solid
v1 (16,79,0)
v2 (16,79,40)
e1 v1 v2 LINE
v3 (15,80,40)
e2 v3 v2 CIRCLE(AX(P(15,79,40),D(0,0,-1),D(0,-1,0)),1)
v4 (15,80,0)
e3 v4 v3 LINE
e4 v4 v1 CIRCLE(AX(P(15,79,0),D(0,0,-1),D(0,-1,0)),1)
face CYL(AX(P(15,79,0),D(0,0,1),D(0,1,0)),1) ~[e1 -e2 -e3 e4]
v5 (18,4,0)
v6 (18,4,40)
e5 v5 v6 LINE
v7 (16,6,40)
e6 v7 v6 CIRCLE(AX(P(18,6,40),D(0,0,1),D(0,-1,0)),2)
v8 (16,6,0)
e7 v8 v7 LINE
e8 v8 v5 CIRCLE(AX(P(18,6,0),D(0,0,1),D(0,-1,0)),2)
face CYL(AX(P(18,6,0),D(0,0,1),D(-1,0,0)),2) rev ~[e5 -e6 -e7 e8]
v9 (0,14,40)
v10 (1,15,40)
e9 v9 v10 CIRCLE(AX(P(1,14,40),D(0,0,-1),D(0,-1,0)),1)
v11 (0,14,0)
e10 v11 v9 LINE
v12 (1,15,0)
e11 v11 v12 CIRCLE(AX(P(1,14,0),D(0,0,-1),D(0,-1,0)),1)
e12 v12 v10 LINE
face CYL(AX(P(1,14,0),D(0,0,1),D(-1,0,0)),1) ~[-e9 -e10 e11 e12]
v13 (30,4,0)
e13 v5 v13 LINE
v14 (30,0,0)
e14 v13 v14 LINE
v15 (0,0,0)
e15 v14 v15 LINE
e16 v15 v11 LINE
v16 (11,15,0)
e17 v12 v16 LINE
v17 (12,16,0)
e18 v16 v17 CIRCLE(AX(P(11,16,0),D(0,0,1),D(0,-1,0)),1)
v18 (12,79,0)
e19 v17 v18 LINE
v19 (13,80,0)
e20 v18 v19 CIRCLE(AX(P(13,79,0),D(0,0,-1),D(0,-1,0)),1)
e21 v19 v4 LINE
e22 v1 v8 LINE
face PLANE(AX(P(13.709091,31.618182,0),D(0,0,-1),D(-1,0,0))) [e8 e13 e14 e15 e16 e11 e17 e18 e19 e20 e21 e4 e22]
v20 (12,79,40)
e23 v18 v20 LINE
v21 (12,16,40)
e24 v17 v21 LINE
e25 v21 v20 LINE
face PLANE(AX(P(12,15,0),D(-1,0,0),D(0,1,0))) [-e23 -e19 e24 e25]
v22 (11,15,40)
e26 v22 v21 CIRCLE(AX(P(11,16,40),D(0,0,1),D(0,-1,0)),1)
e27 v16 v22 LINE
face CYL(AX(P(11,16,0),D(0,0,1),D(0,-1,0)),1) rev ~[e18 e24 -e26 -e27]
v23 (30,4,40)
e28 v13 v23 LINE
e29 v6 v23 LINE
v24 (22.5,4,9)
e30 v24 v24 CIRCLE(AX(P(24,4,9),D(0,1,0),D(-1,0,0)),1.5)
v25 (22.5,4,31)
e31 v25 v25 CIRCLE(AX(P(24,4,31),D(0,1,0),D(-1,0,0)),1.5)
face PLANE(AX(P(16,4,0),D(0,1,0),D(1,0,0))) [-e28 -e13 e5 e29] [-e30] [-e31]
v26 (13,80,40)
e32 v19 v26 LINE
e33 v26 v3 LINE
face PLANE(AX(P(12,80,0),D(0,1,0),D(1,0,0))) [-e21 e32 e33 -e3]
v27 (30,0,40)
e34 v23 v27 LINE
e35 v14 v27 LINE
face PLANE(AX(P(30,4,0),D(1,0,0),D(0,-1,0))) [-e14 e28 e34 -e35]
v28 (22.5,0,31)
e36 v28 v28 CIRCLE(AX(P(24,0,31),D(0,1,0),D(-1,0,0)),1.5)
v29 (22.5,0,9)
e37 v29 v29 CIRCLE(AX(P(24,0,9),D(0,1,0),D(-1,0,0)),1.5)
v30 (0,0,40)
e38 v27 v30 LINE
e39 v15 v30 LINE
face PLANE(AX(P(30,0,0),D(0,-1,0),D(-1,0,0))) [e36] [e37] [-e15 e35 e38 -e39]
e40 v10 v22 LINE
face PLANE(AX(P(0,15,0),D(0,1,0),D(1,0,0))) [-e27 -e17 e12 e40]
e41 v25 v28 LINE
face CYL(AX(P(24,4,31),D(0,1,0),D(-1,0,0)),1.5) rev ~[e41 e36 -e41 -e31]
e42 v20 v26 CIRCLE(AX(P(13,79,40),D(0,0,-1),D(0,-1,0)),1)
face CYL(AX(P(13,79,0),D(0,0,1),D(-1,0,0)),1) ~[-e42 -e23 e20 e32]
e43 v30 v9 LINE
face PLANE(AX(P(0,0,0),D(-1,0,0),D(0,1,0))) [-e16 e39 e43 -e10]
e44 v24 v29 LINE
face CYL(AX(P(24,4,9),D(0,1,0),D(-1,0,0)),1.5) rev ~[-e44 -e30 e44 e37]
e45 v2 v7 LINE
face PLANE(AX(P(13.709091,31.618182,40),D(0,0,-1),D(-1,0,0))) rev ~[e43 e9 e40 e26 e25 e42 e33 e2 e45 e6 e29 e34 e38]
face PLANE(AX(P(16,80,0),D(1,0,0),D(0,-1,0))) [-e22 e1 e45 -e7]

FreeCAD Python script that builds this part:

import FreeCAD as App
import Part
import Sketcher

V = App.Vector


def edges_at(feature, points):
    """Names of the edges that pass closest to the given points."""
    edges = feature.Shape.Edges
    near = lambda p: min(range(len(edges)), key=lambda i: edges[i].distToShape(Part.Vertex(*p))[0])
    return sorted({f"Edge{near(p) + 1}" for p in points})


def add_polygon(sketch, points):
    """Adds a closed chain of lines whose ends are joined by coincident constraints."""
    first, n = sketch.GeometryCount, len(points)
    for a, b in zip(points, points[1:] + points[:1]):
        sketch.addGeometry(Part.LineSegment(App.Vector(*a, 0), App.Vector(*b, 0)), False)
    for i in range(n):
        sketch.addConstraint(Sketcher.Constraint("Coincident", first + i, 2, first + (i + 1) % n, 1))

doc = App.newDocument("Part")
body = doc.addObject("PartDesign::Body", "Body")

sketch1 = body.newObject("Sketcher::SketchObject", "Sketch")
sketch1.AttachmentSupport = (doc.getObject("XY_Plane"), [""])
sketch1.MapMode = "FlatFace"
add_polygon(sketch1, [(0, 15), (0, 0), (30, 0), (30, 4), (16, 4), (16, 80), (12, 80), (12, 15)])
sketch1.addConstraint([
    Sketcher.Constraint("Vertical", 0),
    Sketcher.Constraint("Horizontal", 1),
    Sketcher.Constraint("Vertical", 2),
    Sketcher.Constraint("Horizontal", 3),
    Sketcher.Constraint("Vertical", 4),
    Sketcher.Constraint("Horizontal", 5),
    Sketcher.Constraint("Vertical", 6),
    Sketcher.Constraint("Horizontal", 7),
    Sketcher.Constraint("Coincident", 0, 2, -1, 1),
    Sketcher.Constraint("Equal", 5, 2),
    Sketcher.Constraint("DistanceX", 1, 1, 1, 2, 30.0),
    Sketcher.Constraint("DistanceX", 3, 2, 3, 1, 14.0),
    Sketcher.Constraint("DistanceX", 5, 2, 5, 1, 4.0),
    Sketcher.Constraint("DistanceY", 0, 2, 0, 1, 15.0),
    Sketcher.Constraint("DistanceY", 4, 1, 4, 2, 76.0),
])
pad1 = body.newObject("PartDesign::Pad", "Pad")
pad1.Profile = sketch1
pad1.Length = 40
doc.recompute()

fillet = body.newObject("PartDesign::Fillet", "Fillet")
fillet.Base = (pad1, edges_at(pad1, [(12, 80, 20)]))
fillet.Radius = 1
doc.recompute()

fillet2 = body.newObject("PartDesign::Fillet", "Fillet001")
fillet2.Base = (fillet, edges_at(fillet, [(16, 80, 20)]))
fillet2.Radius = 1
doc.recompute()

fillet3 = body.newObject("PartDesign::Fillet", "Fillet002")
fillet3.Base = (fillet2, edges_at(fillet2, [(16, 4, 20)]))
fillet3.Radius = 2
doc.recompute()

fillet4 = body.newObject("PartDesign::Fillet", "Fillet003")
fillet4.Base = (fillet3, edges_at(fillet3, [(0, 15, 20)]))
fillet4.Radius = 1
doc.recompute()

fillet5 = body.newObject("PartDesign::Fillet", "Fillet004")
fillet5.Base = (fillet4, edges_at(fillet4, [(12, 15, 20)]))
fillet5.Radius = 1

sketch2 = body.newObject("Sketcher::SketchObject", "Sketch001")
sketch2.AttachmentSupport = (doc.getObject("XZ_Plane"), [""])
sketch2.MapMode = "FlatFace"
sketch2.AttachmentOffset = App.Placement(V(0, 0, -4), App.Rotation())
sketch2.addGeometry([
    Part.Circle(V(24, 31, 0), V(0, 0, 1), 1.5),
    Part.Circle(V(24, 9, 0), V(0, 0, 1), 1.5),
], False)
sketch2.addConstraint([
    Sketcher.Constraint("Equal", 0, 1),
    Sketcher.Constraint("Vertical", 0, 3, 1, 3),
    Sketcher.Constraint("Diameter", 0, 3.0),
    Sketcher.Constraint("DistanceX", -1, 1, 0, 3, 24.0),
    Sketcher.Constraint("DistanceY", -1, 1, 0, 3, 31.0),
    Sketcher.Constraint("DistanceY", -1, 1, 1, 3, 9.0),
])
pocket1 = body.newObject("PartDesign::Pocket", "Pocket")
pocket1.Profile = sketch2
pocket1.Length = 5
pocket1.Reversed = True

doc.recompute()
